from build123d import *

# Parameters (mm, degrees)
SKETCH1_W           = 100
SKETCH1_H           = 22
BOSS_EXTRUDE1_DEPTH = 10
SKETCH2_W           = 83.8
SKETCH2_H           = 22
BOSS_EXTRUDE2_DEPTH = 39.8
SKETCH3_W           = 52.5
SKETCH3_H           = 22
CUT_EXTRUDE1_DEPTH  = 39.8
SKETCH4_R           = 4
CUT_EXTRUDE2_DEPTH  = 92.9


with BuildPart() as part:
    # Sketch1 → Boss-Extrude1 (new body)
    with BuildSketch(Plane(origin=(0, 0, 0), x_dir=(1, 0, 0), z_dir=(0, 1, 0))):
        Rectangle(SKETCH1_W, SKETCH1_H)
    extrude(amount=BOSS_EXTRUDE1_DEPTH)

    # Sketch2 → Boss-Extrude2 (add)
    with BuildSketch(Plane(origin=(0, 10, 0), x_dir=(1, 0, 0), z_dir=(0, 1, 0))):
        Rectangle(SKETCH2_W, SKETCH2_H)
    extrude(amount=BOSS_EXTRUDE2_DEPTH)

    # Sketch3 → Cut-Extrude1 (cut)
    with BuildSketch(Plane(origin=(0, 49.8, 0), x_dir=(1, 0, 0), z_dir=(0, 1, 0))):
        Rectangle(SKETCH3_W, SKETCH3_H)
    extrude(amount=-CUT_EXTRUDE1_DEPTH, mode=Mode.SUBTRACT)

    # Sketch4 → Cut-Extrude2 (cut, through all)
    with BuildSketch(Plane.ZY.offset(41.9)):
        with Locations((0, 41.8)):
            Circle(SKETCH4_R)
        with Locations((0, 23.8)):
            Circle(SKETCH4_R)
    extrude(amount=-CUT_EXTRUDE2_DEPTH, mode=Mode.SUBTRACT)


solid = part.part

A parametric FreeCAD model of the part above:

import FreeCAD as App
import Part
import Sketcher

V = App.Vector
Q = App.Units.Quantity

doc = App.newDocument("Part")
params = doc.addObject("Spreadsheet::Sheet", "Params")
for row, (alias, value) in enumerate([
    ("sketch1_width", "100 mm"),
    ("sketch1_height", "22 mm"),
    ("pad1_length", "10 mm"),
    ("sketch2_height", "22 mm"),
    ("sketch2_width", "83.8 mm"),
    ("pad2_length", "39.8 mm"),
    ("sketch3_height", "22 mm"),
    ("sketch3_width", "52.5 mm"),
    ("pocket1_length", "39.8 mm"),
    ("sketch4_diameter", "8 mm"),
], start=1):
    params.set(f"A{row}", alias)
    params.set(f"B{row}", "=" + value)
    params.setAlias(f"B{row}", alias)

body = doc.addObject("PartDesign::Body", "Body")

sketch1 = body.newObject("Sketcher::SketchObject", "Sketch")
sketch1.AttachmentSupport = (doc.getObject("XZ_Plane"), [""])
sketch1.MapMode = "FlatFace"
sketch1.addGeometry([
    Part.LineSegment(V(-50, -11, 0), V(-50, 11, 0)),
    Part.LineSegment(V(-50, 11, 0), V(50, 11, 0)),
    Part.LineSegment(V(50, 11, 0), V(50, -11, 0)),
    Part.LineSegment(V(50, -11, 0), V(-50, -11, 0)),
], False)
sketch1.addConstraint([
    Sketcher.Constraint("Coincident", 0, 2, 1, 1),
    Sketcher.Constraint("Coincident", 1, 2, 2, 1),
    Sketcher.Constraint("Coincident", 2, 2, 3, 1),
    Sketcher.Constraint("Coincident", 3, 2, 0, 1),
    Sketcher.Constraint("Vertical", 0),
    Sketcher.Constraint("Horizontal", 1),
    Sketcher.Constraint("Vertical", 2),
    Sketcher.Constraint("Horizontal", 3),
    Sketcher.Constraint("Symmetric", 0, 2, 2, 2, -1, 1),
    Sketcher.Constraint("DistanceX", 1, 1, 1, 2, Q("100 mm")),
    Sketcher.Constraint("DistanceY", 0, 1, 0, 2, Q("22 mm")),
])
sketch1.setExpression("Constraints[9]", "Params.sketch1_width")
sketch1.setExpression("Constraints[10]", "Params.sketch1_height")
pad1 = body.newObject("PartDesign::Pad", "Pad")
pad1.Profile = sketch1
pad1.setExpression("Length", "Params.pad1_length")
pad1.Reversed = True

sketch2 = body.newObject("Sketcher::SketchObject", "Sketch001")
sketch2.AttachmentSupport = (doc.getObject("XZ_Plane"), [""])
sketch2.MapMode = "FlatFace"
sketch2.AttachmentOffset = App.Placement(V(0, 0, -10), App.Rotation())
sketch2.addGeometry([
    Part.LineSegment(V(-42, -11, 0), V(-42, 11, 0)),
    Part.LineSegment(V(-42, 11, 0), V(42, 11, 0)),
    Part.LineSegment(V(42, 11, 0), V(42, -11, 0)),
    Part.LineSegment(V(42, -11, 0), V(-42, -11, 0)),
], False)
sketch2.addConstraint([
    Sketcher.Constraint("Coincident", 0, 2, 1, 1),
    Sketcher.Constraint("Coincident", 1, 2, 2, 1),
    Sketcher.Constraint("Coincident", 2, 2, 3, 1),
    Sketcher.Constraint("Coincident", 3, 2, 0, 1),
    Sketcher.Constraint("Vertical", 0),
    Sketcher.Constraint("Horizontal", 1),
    Sketcher.Constraint("Vertical", 2),
    Sketcher.Constraint("Horizontal", 3),
    Sketcher.Constraint("Symmetric", 0, 2, 2, 2, -1, 1),
    Sketcher.Constraint("DistanceY", 0, 1, 0, 2, Q("22 mm")),
    Sketcher.Constraint("DistanceX", 1, 1, 1, 2, Q("83.8 mm")),
])
sketch2.setExpression("Constraints[9]", "Params.sketch2_height")
sketch2.setExpression("Constraints[10]", "Params.sketch2_width")
pad2 = body.newObject("PartDesign::Pad", "Pad001")
pad2.Profile = sketch2
pad2.setExpression("Length", "Params.pad2_length")
pad2.Reversed = True

sketch3 = body.newObject("Sketcher::SketchObject", "Sketch002")
sketch3.AttachmentSupport = (doc.getObject("XZ_Plane"), [""])
sketch3.MapMode = "FlatFace"
sketch3.AttachmentOffset = App.Placement(V(0, 0, -49.8), App.Rotation())
sketch3.addGeometry([
    Part.LineSegment(V(-26, -11, 0), V(-26, 11, 0)),
    Part.LineSegment(V(-26, 11, 0), V(26, 11, 0)),
    Part.LineSegment(V(26, 11, 0), V(26, -11, 0)),
    Part.LineSegment(V(26, -11, 0), V(-26, -11, 0)),
], False)
sketch3.addConstraint([
    Sketcher.Constraint("Coincident", 0, 2, 1, 1),
    Sketcher.Constraint("Coincident", 1, 2, 2, 1),
    Sketcher.Constraint("Coincident", 2, 2, 3, 1),
    Sketcher.Constraint("Coincident", 3, 2, 0, 1),
    Sketcher.Constraint("Vertical", 0),
    Sketcher.Constraint("Horizontal", 1),
    Sketcher.Constraint("Vertical", 2),
    Sketcher.Constraint("Horizontal", 3),
    Sketcher.Constraint("Symmetric", 0, 2, 2, 2, -1, 1),
    Sketcher.Constraint("DistanceY", 0, 1, 0, 2, Q("22 mm")),
    Sketcher.Constraint("DistanceX", 1, 1, 1, 2, Q("52.5 mm")),
])
sketch3.setExpression("Constraints[9]", "Params.sketch3_height")
sketch3.setExpression("Constraints[10]", "Params.sketch3_width")
pocket1 = body.newObject("PartDesign::Pocket", "Pocket")
pocket1.Profile = sketch3
pocket1.setExpression("Length", "Params.pocket1_length")
pocket1.Reversed = True

sketch4 = body.newObject("Sketcher::SketchObject", "Sketch003")
sketch4.AttachmentSupport = (doc.getObject("YZ_Plane"), [""])
sketch4.MapMode = "FlatFace"
sketch4.AttachmentOffset = App.Placement(V(0, 0, -41.9), App.Rotation())
sketch4.addGeometry([
    Part.Circle(V(41.8, 0, 0), V(0, 0, 1), 4),
    Part.Circle(V(23.8, 0, 0), V(0, 0, 1), 4),
], False)
sketch4.addConstraint([
    Sketcher.Constraint("Equal", 0, 1),
    Sketcher.Constraint("PointOnObject", 0, 3, -1),
    Sketcher.Constraint("PointOnObject", 1, 3, -1),
    Sketcher.Constraint("Diameter", 0, Q("8 mm")),
    Sketcher.Constraint("DistanceX", 1, 3, 0, 3, Q("18 mm")),
    Sketcher.Constraint("DistanceX", -1, 1, 0, 3, Q("41.8 mm")),
])
sketch4.setExpression("Constraints[3]", "Params.sketch4_diameter")
pocket2 = body.newObject("PartDesign::Pocket", "Pocket001")
pocket2.Profile = sketch4
pocket2.Type = "ThroughAll"
pocket2.Reversed = True

doc.recompute()
